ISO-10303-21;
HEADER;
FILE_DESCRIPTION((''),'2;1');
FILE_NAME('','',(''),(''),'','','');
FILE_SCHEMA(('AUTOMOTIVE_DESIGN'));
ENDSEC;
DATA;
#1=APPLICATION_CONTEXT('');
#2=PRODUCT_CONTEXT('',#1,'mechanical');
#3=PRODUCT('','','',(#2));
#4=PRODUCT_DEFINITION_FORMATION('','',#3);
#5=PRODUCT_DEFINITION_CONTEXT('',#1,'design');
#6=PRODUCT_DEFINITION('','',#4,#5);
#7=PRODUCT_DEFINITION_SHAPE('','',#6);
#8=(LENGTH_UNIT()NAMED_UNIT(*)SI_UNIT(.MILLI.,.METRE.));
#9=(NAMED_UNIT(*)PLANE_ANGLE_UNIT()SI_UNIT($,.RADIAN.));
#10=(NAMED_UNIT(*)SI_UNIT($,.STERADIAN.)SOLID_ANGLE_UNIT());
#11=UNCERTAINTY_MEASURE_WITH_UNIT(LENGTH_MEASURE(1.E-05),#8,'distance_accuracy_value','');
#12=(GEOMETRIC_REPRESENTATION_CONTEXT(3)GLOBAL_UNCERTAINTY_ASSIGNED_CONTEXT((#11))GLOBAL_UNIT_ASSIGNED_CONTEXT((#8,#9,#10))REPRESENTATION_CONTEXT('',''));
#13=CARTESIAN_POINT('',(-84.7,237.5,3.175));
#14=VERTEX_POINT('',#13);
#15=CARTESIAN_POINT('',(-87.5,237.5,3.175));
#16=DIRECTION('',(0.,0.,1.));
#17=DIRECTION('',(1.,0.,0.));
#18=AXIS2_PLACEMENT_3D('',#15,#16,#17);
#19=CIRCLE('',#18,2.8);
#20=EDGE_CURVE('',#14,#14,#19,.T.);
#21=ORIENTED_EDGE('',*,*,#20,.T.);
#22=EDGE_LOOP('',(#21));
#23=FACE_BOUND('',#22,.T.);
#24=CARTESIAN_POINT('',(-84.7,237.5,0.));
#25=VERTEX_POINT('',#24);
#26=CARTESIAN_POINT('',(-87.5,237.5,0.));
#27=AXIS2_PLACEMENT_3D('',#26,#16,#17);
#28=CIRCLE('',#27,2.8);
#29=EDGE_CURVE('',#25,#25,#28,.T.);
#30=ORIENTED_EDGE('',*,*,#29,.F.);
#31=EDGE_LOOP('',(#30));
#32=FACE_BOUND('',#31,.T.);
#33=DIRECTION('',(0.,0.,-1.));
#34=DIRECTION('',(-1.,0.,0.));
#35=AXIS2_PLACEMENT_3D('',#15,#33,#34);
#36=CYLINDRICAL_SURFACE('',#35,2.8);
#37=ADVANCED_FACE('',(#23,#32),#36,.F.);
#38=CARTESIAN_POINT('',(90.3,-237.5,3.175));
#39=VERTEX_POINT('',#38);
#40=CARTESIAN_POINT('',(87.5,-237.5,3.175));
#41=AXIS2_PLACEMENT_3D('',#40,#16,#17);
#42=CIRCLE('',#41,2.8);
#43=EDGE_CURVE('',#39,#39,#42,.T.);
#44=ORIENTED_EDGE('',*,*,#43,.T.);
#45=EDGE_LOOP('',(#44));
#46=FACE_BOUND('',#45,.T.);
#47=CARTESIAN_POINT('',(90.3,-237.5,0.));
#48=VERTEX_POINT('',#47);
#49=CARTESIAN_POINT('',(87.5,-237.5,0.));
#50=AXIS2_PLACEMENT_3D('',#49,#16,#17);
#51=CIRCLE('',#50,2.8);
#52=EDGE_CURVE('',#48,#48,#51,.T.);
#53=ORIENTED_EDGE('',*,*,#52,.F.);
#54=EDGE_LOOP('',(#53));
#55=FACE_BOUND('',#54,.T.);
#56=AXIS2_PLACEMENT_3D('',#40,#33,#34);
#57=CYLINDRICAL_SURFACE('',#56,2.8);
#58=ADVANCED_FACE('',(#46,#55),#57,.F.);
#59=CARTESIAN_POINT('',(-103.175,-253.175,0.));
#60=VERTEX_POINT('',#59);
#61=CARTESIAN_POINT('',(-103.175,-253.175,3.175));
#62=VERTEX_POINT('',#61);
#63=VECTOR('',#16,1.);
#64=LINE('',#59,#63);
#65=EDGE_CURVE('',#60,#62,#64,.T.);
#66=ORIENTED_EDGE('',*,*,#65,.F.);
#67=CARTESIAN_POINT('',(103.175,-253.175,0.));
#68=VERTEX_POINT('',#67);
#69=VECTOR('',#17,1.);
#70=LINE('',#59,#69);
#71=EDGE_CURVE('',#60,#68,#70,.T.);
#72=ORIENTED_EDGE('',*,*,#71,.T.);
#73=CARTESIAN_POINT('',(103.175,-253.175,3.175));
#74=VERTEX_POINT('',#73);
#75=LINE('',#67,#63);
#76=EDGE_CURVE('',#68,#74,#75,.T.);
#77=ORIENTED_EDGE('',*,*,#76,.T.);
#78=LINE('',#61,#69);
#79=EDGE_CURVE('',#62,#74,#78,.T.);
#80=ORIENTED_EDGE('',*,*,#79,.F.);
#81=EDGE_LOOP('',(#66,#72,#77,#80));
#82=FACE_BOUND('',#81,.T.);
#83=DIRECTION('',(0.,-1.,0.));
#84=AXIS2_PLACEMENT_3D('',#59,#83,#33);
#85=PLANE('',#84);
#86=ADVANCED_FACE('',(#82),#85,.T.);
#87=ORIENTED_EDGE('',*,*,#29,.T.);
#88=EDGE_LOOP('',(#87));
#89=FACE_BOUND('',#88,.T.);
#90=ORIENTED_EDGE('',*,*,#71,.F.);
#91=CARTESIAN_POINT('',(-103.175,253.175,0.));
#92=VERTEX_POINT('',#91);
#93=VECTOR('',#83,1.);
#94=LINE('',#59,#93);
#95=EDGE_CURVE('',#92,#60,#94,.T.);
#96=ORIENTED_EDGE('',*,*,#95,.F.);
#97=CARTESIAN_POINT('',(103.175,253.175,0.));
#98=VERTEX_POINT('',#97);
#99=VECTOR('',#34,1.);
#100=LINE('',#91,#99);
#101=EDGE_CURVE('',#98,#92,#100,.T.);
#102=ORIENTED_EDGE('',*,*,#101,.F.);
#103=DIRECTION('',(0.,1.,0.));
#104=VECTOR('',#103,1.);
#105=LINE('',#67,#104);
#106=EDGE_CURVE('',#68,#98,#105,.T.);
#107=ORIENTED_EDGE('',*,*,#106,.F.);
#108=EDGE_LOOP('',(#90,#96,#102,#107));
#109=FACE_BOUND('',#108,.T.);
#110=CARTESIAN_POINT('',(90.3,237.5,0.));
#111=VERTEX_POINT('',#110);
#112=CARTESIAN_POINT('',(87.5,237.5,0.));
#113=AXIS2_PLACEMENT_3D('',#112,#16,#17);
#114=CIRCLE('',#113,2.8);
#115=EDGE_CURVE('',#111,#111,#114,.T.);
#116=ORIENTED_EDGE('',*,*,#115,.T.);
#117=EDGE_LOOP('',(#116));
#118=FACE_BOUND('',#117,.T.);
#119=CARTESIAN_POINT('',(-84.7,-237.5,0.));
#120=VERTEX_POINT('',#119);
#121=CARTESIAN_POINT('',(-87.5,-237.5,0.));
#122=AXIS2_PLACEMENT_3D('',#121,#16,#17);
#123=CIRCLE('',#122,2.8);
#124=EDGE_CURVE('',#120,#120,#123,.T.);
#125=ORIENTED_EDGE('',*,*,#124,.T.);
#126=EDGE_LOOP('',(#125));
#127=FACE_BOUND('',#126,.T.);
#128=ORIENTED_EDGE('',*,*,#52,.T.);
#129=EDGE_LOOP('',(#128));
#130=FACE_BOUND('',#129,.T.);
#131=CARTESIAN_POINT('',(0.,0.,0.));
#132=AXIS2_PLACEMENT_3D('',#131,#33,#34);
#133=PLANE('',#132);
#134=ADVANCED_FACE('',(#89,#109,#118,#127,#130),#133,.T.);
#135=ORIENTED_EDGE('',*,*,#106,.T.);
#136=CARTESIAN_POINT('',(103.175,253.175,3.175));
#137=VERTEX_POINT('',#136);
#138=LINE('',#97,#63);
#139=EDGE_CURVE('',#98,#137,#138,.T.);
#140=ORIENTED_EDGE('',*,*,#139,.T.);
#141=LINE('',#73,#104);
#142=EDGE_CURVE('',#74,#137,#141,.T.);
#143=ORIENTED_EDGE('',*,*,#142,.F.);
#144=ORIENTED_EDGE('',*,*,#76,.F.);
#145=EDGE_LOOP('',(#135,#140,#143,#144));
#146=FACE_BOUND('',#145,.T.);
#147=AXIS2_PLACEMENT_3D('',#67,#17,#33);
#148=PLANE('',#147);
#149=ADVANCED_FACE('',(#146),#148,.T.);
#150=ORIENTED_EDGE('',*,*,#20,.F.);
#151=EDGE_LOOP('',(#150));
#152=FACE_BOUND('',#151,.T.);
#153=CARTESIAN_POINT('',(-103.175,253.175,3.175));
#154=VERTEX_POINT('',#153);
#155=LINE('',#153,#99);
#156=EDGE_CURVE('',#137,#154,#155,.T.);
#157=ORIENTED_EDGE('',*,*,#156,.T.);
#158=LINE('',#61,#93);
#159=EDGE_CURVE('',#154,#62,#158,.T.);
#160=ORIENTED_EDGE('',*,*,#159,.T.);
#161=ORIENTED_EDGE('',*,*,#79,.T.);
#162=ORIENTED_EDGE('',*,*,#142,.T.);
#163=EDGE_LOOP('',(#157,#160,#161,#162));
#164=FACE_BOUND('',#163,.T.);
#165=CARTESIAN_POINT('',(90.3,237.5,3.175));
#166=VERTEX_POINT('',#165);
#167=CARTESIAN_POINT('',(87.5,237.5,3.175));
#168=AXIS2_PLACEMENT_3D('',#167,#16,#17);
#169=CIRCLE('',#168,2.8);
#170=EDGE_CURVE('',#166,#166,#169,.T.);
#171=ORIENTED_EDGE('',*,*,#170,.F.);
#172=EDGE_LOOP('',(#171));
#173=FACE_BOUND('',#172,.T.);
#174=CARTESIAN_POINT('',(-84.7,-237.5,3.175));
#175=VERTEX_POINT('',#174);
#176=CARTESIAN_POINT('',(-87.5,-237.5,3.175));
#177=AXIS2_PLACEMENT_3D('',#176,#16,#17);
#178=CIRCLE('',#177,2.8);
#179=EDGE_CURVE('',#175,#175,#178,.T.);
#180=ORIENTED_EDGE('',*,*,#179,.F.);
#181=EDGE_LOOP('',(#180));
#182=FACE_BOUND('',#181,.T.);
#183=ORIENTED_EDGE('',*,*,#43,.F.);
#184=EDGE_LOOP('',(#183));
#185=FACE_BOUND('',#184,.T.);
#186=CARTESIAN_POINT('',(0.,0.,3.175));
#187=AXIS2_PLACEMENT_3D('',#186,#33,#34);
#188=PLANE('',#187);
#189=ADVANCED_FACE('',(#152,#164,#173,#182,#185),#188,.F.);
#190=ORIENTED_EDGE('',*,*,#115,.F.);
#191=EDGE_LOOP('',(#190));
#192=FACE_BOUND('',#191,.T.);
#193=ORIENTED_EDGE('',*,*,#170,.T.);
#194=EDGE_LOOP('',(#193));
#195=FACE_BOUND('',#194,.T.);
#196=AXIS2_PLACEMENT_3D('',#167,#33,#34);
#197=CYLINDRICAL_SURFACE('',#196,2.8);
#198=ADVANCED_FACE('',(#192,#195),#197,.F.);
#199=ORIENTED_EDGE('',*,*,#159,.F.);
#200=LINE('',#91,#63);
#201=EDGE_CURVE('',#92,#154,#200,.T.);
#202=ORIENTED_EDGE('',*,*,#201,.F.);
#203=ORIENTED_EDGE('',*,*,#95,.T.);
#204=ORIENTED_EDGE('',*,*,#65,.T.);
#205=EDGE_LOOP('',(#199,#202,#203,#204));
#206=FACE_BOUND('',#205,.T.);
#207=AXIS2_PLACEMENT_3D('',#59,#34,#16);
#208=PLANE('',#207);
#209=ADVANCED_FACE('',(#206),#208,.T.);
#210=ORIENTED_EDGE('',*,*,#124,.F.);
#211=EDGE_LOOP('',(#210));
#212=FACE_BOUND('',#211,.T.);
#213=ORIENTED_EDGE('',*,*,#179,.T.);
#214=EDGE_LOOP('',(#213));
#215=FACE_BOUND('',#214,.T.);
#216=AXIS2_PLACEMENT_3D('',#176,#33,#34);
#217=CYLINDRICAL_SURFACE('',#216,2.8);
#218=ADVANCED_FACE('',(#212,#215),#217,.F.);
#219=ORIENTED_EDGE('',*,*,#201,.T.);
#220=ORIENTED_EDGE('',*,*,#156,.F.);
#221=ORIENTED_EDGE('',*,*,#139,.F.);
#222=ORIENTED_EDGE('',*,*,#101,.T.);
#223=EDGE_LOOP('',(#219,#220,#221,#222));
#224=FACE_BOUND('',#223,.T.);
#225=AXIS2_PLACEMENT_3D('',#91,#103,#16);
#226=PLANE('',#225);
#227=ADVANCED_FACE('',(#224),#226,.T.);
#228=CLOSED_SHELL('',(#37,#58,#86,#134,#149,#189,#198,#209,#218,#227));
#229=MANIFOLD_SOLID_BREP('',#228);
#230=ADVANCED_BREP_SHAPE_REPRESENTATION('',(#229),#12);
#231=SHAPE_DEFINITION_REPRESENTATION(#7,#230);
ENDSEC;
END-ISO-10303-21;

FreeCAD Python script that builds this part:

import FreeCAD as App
import Part
import Sketcher
Q = App.Units.Quantity


def add_polygon(sketch, points):
    """Adds a closed chain of lines whose ends are joined by coincident constraints."""
    first, n = sketch.GeometryCount, len(points)
    for a, b in zip(points, points[1:] + points[:1]):
        sketch.addGeometry(Part.LineSegment(App.Vector(*a, 0), App.Vector(*b, 0)), False)
    for i in range(n):
        sketch.addConstraint(Sketcher.Constraint("Coincident", first + i, 2, first + (i + 1) % n, 1))

doc = App.newDocument("Part")
body = doc.addObject("PartDesign::Body", "Body")

# Sketch on XY plane
sketch1 = body.newObject("Sketcher::SketchObject", "Sketch")
sketch1.AttachmentSupport = (doc.getObject("XY_Plane"), [""])
sketch1.MapMode = "FlatFace"
add_polygon(sketch1, [(-100, -250), (100, -250), (100, 250), (-100, 250)])  # lines 0-3
sketch1.addGeometry(Part.Circle(App.Vector(87.5, -237.5, 0), App.Vector(0, 0, 1), 2.8), False)  # 4
sketch1.addGeometry(Part.Circle(App.Vector(87.5, 237.5, 0), App.Vector(0, 0, 1), 2.8), False)  # 5
sketch1.addGeometry(Part.Circle(App.Vector(-87.5, -237.5, 0), App.Vector(0, 0, 1), 2.8), False)  # 6
sketch1.addGeometry(Part.Circle(App.Vector(-87.5, 237.5, 0), App.Vector(0, 0, 1), 2.8), False)  # 7
sketch1.addConstraint([
    Sketcher.Constraint("Horizontal", 0),
    Sketcher.Constraint("Vertical", 1),
    Sketcher.Constraint("Horizontal", 2),
    Sketcher.Constraint("Vertical", 3),
    Sketcher.Constraint("Equal", 4, 5),
    Sketcher.Constraint("Equal", 5, 6),
    Sketcher.Constraint("Equal", 6, 7),
    Sketcher.Constraint("Symmetric", 5, 3, 6, 3, -1, 1),
    Sketcher.Constraint("Symmetric", 4, 3, 7, 3, -1, 1),
    Sketcher.Constraint("Symmetric", 0, 2, 2, 2, -1, 1),
    Sketcher.Constraint("Symmetric", 4, 3, 6, 3, -2),
    Sketcher.Constraint("Diameter", 4, Q("5.6 mm")),
    Sketcher.Constraint("DistanceX", 0, 1, 0, 2, Q("200 mm")),
    Sketcher.Constraint("DistanceY", 1, 1, 1, 2, Q("500 mm")),
    Sketcher.Constraint("DistanceY", 4, 3, 5, 3, Q("475 mm")),
    Sketcher.Constraint("DistanceX", 6, 3, 4, 3, Q("175 mm")),
])
pad1 = body.newObject("PartDesign::Pad", "Pad")
pad1.Profile = sketch1
pad1.Length = 3.175

# Sketch on XY plane
sketch2 = body.newObject("Sketcher::SketchObject", "Sketch001")
sketch2.AttachmentSupport = (doc.getObject("XY_Plane"), [""])
sketch2.MapMode = "FlatFace"
sketch2.AttachmentOffset = App.Placement(App.Vector(0, 0, 3.175), App.Rotation())
add_polygon(sketch2, [(-103, 253), (-103, -253), (103, -253), (103, 253)])  # lines 0-3
add_polygon(sketch2, [(100, -250), (-100, -250), (-100, 250), (100, 250)])  # lines 4-7
sketch2.addConstraint([
    Sketcher.Constraint("Vertical", 0),
    Sketcher.Constraint("Horizontal", 1),
    Sketcher.Constraint("Vertical", 2),
    Sketcher.Constraint("Horizontal", 3),
    Sketcher.Constraint("Horizontal", 4),
    Sketcher.Constraint("Vertical", 5),
    Sketcher.Constraint("Horizontal", 6),
    Sketcher.Constraint("Vertical", 7),
    Sketcher.Constraint("Symmetric", 0, 2, 2, 2, -1, 1),
    Sketcher.Constraint("Symmetric", 4, 2, 6, 2, -1, 1),
    Sketcher.Constraint("DistanceX", 4, 2, 4, 1, Q("200 mm")),
    Sketcher.Constraint("DistanceY", 5, 1, 5, 2, Q("500 mm")),
    Sketcher.Constraint("DistanceX", 1, 1, 1, 2, Q("206.35 mm")),
    Sketcher.Constraint("DistanceY", 0, 2, 0, 1, Q("506.35 mm")),
])
pad2 = body.newObject("PartDesign::Pad", "Pad001")
pad2.Profile = sketch2
pad2.Type = "UpToLast"
pad2.Reversed = True

doc.recompute()
